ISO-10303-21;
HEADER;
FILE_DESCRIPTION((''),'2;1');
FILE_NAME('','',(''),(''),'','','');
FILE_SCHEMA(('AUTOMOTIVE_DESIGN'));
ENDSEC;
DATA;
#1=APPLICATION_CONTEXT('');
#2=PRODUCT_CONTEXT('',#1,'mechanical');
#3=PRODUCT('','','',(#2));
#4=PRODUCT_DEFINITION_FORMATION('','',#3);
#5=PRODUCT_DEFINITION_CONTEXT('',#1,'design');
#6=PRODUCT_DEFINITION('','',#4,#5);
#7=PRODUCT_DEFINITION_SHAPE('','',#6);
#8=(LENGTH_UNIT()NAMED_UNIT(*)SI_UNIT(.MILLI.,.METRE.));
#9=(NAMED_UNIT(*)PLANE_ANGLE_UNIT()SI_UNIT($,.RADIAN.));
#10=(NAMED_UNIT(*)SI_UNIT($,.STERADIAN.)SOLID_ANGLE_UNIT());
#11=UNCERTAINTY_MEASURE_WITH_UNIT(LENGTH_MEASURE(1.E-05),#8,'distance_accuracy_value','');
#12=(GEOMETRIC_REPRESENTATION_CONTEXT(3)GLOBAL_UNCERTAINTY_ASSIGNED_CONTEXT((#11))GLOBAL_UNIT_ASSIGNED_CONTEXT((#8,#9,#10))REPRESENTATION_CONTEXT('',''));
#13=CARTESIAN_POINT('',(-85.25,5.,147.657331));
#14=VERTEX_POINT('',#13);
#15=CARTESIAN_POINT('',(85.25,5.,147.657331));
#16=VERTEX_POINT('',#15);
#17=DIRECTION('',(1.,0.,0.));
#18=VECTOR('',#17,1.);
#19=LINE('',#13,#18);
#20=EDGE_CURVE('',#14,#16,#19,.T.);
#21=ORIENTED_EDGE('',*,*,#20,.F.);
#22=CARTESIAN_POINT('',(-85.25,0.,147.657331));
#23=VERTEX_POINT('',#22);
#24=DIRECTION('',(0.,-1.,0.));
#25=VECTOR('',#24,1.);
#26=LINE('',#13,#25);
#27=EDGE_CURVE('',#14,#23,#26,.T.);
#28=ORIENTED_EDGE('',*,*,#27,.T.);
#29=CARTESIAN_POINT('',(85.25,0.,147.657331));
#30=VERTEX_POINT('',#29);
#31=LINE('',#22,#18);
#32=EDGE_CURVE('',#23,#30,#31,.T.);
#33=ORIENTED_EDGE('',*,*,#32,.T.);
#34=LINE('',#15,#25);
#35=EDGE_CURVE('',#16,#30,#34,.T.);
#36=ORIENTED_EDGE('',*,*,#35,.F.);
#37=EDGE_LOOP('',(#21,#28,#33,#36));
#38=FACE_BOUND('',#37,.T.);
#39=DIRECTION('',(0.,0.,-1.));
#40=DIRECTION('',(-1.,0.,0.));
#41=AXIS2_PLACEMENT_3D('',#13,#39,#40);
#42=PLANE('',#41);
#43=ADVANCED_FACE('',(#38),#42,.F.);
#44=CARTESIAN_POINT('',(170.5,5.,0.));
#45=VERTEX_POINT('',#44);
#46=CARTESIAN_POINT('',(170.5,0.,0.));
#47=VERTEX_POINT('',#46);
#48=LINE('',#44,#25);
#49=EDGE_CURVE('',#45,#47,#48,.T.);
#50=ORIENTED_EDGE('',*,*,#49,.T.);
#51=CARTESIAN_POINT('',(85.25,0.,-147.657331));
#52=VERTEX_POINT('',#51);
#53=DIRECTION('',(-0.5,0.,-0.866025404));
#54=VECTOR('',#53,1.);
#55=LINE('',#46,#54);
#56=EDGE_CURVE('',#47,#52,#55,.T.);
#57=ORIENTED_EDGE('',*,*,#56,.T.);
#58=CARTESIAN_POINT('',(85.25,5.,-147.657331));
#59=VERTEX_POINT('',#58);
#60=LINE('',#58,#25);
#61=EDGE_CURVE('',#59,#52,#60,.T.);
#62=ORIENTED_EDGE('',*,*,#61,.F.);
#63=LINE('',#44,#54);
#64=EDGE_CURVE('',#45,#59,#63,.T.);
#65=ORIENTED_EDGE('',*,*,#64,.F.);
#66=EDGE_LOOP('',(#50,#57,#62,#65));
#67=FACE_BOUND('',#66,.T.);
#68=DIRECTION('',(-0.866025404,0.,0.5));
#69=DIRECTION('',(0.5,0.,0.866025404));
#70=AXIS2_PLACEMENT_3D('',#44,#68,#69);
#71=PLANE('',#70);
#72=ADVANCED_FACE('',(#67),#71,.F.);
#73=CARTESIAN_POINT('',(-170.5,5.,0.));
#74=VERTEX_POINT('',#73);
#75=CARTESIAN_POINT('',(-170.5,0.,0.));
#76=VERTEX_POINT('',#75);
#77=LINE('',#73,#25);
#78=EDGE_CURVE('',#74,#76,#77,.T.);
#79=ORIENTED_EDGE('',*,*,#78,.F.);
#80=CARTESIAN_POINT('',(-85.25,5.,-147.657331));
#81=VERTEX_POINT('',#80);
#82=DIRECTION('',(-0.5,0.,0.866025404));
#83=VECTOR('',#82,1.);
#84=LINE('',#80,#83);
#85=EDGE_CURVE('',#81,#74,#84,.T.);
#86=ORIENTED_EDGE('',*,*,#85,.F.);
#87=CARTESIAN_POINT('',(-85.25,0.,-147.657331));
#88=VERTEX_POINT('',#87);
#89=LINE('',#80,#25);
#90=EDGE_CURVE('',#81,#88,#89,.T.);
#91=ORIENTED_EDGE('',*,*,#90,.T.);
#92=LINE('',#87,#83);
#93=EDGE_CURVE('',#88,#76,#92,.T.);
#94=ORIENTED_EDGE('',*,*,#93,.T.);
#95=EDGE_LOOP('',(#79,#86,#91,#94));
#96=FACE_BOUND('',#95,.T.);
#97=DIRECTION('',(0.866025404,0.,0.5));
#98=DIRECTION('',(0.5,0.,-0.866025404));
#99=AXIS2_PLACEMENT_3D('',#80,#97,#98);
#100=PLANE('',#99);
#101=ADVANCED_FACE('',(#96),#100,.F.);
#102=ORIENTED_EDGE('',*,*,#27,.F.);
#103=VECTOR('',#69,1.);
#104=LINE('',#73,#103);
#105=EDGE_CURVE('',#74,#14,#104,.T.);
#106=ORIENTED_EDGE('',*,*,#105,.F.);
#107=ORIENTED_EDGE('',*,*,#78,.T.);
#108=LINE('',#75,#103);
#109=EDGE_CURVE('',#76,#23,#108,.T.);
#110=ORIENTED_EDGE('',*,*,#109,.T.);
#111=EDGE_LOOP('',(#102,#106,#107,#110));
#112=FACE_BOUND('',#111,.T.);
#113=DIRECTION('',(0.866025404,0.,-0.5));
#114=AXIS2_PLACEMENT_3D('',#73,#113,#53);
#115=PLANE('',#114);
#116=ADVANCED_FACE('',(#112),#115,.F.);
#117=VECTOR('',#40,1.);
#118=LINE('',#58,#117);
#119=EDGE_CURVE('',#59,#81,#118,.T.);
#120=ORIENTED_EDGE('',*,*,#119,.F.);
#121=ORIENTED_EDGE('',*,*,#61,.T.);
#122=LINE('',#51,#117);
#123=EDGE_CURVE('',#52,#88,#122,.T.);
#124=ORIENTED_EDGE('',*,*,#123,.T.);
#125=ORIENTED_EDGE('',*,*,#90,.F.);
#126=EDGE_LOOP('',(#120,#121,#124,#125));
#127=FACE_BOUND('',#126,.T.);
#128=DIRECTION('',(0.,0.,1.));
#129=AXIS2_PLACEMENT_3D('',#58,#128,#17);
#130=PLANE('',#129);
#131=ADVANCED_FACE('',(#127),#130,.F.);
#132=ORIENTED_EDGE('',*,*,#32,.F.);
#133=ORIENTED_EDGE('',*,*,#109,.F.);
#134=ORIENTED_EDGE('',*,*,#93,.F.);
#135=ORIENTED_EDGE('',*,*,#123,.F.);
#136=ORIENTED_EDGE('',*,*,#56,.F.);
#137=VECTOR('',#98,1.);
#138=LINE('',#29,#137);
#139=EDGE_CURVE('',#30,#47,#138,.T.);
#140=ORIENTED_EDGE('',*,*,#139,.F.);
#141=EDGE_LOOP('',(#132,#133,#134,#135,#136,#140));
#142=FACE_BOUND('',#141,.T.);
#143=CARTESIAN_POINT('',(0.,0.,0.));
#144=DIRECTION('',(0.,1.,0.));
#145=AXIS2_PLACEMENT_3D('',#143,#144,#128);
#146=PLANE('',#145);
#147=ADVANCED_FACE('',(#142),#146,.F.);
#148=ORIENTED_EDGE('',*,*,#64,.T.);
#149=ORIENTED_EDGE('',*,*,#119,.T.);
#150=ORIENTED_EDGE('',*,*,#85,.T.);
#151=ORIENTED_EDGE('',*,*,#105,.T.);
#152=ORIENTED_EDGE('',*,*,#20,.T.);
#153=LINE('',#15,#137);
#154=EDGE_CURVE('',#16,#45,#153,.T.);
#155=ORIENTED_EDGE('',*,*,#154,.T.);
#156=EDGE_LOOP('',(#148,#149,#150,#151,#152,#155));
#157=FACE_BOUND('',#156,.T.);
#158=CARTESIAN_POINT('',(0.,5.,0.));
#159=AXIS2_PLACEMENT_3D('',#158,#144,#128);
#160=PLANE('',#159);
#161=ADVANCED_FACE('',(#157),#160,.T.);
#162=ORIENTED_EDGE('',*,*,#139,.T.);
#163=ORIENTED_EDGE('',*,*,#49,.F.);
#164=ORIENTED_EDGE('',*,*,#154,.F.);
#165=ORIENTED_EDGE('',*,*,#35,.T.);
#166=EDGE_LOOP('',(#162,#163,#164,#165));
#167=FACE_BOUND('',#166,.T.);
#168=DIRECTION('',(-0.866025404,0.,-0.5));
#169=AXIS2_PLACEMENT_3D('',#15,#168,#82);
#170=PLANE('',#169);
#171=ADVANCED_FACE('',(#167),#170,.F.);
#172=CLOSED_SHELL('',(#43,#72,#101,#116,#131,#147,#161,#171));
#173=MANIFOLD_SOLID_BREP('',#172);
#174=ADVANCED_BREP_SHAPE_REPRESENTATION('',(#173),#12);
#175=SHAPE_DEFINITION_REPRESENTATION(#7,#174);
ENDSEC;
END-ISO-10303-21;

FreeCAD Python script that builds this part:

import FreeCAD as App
import Part
import Sketcher

V = App.Vector
Q = App.Units.Quantity

doc = App.newDocument("Part")
params = doc.addObject("Spreadsheet::Sheet", "Params")
for row, (alias, value) in enumerate([
    ("sketch1_width", "170.5 mm"),
    ("pad1_length", "5 mm"),
], start=1):
    params.set(f"A{row}", alias)
    params.set(f"B{row}", "=" + value)
    params.setAlias(f"B{row}", alias)

body = doc.addObject("PartDesign::Body", "Body")

# Sketch on XZ plane
sketch1 = body.newObject("Sketcher::SketchObject", "Sketch")
sketch1.AttachmentSupport = (doc.getObject("XZ_Plane"), [""])
sketch1.MapMode = "FlatFace"
sketch1.addGeometry(Part.LineSegment(V(85, 148, 0), V(170, 0, 0)), False)
sketch1.addGeometry(Part.LineSegment(V(170, 0, 0), V(85, -148, 0)), False)
sketch1.addGeometry(Part.LineSegment(V(85, -148, 0), V(-85, -148, 0)), False)
sketch1.addGeometry(Part.LineSegment(V(-85, -148, 0), V(-170, 0, 0)), False)
sketch1.addGeometry(Part.LineSegment(V(-170, 0, 0), V(-85, 148, 0)), False)
sketch1.addGeometry(Part.LineSegment(V(-85, 148, 0), V(85, 148, 0)), False)
sketch1.addConstraint(Sketcher.Constraint("Coincident", 0, 2, 1, 1))
sketch1.addConstraint(Sketcher.Constraint("Coincident", 1, 2, 2, 1))
sketch1.addConstraint(Sketcher.Constraint("Coincident", 2, 2, 3, 1))
sketch1.addConstraint(Sketcher.Constraint("Coincident", 3, 2, 4, 1))
sketch1.addConstraint(Sketcher.Constraint("Coincident", 4, 2, 5, 1))
sketch1.addConstraint(Sketcher.Constraint("Coincident", 5, 2, 0, 1))
sketch1.addConstraint(Sketcher.Constraint("Horizontal", 2))
sketch1.addConstraint(Sketcher.Constraint("Horizontal", 5))
sketch1.addConstraint(Sketcher.Constraint("Symmetric", 0, 2, 3, 2, -1, 1))
sketch1.addConstraint(Sketcher.Constraint("Symmetric", 1, 2, 4, 2, -1, 1))
sketch1.addConstraint(Sketcher.Constraint("PointOnObject", 0, 2, -1))
sketch1.addConstraint(Sketcher.Constraint("Parallel", 0, 3))
sketch1.addConstraint(Sketcher.Constraint("Vertical", 2, 2, 4, 2))
sketch1.addConstraint(Sketcher.Constraint("Angle", 0, Q("-60 deg")))
sketch1.addConstraint(Sketcher.Constraint("DistanceX", 2, 2, 2, 1, Q("170.5 mm")))
sketch1.addConstraint(Sketcher.Constraint("DistanceX", 3, 2, 0, 2, Q("341 mm")))
sketch1.setExpression("Constraints[14]", "Params.sketch1_width")
pad1 = body.newObject("PartDesign::Pad", "Pad")
pad1.Profile = sketch1
pad1.setExpression("Length", "Params.pad1_length")
pad1.Reversed = True

doc.recompute()
